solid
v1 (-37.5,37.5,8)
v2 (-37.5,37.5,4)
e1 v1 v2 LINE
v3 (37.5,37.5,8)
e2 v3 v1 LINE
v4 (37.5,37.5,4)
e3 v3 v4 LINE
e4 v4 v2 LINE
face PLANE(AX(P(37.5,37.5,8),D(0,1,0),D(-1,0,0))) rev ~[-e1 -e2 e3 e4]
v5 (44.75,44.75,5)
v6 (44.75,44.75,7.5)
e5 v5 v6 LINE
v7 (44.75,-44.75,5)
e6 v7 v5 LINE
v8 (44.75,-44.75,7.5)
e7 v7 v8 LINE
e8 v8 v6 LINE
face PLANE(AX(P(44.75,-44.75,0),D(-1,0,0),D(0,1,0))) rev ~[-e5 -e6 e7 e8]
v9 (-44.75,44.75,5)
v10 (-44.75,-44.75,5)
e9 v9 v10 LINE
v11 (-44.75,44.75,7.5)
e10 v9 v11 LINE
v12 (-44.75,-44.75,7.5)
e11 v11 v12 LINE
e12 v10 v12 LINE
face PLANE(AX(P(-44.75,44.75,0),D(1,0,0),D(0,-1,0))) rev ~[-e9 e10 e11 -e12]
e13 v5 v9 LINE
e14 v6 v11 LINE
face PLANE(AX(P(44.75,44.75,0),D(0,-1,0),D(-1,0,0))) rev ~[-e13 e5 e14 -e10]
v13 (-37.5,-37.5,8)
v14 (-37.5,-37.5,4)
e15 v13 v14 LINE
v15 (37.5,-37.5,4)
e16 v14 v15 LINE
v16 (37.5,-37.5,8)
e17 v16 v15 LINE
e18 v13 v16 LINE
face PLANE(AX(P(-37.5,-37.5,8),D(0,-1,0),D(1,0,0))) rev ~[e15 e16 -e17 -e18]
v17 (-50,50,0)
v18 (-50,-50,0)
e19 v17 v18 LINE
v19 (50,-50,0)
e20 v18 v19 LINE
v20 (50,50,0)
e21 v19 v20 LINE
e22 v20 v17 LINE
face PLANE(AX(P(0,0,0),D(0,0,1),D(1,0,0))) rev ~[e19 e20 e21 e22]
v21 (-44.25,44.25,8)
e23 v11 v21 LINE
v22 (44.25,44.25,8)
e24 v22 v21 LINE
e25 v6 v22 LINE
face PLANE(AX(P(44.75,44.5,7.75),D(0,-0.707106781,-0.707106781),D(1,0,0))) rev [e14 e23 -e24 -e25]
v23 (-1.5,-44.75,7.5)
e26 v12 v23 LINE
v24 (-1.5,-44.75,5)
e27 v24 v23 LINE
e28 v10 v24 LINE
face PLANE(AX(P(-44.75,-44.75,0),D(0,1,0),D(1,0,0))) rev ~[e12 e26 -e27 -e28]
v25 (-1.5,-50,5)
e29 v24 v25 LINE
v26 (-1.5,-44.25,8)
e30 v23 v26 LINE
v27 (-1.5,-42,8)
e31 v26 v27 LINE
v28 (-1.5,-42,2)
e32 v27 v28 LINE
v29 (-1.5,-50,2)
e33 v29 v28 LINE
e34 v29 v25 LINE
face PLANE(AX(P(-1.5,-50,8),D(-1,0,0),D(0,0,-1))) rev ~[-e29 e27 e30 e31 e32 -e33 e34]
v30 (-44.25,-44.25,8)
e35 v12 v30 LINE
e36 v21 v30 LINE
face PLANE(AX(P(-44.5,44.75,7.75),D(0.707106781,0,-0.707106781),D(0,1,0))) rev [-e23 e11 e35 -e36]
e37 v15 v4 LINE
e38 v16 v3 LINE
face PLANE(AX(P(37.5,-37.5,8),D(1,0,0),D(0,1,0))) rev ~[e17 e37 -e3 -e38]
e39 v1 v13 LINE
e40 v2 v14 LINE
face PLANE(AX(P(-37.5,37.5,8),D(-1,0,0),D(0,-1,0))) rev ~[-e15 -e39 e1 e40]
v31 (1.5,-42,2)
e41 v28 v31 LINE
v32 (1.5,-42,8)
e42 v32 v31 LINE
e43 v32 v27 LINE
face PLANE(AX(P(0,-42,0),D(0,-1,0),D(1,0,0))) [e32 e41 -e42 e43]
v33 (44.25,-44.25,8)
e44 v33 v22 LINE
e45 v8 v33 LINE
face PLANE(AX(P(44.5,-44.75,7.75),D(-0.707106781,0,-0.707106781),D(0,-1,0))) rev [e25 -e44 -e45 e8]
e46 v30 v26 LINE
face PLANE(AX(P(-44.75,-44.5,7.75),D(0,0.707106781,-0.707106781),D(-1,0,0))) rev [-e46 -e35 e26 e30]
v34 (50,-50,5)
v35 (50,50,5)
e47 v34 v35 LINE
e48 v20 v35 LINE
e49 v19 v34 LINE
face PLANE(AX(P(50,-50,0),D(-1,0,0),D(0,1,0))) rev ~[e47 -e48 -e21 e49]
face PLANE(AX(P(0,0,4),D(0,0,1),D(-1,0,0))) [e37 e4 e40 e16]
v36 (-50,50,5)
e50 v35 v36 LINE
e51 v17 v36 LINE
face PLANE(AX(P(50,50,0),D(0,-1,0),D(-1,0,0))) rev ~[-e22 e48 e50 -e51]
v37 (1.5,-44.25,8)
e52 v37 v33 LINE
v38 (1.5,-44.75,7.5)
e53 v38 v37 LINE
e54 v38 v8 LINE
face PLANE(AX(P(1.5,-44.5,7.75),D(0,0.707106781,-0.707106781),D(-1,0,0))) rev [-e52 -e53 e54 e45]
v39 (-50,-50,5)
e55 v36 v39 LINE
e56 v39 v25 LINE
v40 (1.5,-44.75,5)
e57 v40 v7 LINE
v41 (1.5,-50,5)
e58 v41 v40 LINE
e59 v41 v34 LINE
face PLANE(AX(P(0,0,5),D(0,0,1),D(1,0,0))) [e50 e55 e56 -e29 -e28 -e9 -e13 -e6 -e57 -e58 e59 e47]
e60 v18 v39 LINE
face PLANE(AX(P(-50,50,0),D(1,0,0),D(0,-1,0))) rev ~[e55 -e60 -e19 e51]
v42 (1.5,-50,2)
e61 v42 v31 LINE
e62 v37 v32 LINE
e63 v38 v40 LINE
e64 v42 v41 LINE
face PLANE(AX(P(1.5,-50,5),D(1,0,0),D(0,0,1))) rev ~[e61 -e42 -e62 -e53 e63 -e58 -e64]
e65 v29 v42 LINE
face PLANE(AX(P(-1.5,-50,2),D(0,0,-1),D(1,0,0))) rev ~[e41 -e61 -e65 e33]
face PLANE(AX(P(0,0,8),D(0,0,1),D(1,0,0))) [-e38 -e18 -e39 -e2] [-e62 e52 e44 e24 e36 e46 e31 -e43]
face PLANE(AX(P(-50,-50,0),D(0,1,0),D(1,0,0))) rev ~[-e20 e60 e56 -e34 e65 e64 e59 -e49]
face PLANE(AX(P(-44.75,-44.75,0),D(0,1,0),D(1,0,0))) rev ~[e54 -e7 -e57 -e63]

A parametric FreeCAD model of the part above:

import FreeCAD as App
import Part
import Sketcher
from FreeCAD import Vector
Q = App.Units.Quantity


def edges_at(feature, points):
    """Names of the edges that pass closest to the given points."""
    edges = feature.Shape.Edges
    near = lambda p: min(range(len(edges)), key=lambda i: edges[i].distToShape(Part.Vertex(*p))[0])
    return sorted({f"Edge{near(p) + 1}" for p in points})


def add_polygon(sketch, points):
    """Adds a closed chain of lines whose ends are joined by coincident constraints."""
    first, n = sketch.GeometryCount, len(points)
    for a, b in zip(points, points[1:] + points[:1]):
        sketch.addGeometry(Part.LineSegment(App.Vector(*a, 0), App.Vector(*b, 0)), False)
    for i in range(n):
        sketch.addConstraint(Sketcher.Constraint("Coincident", first + i, 2, first + (i + 1) % n, 1))

doc = App.newDocument("Part")
body = doc.addObject("PartDesign::Body", "Body")

sketch1 = body.newObject("Sketcher::SketchObject", "Sketch")
sketch1.AttachmentSupport = (doc.getObject("XY_Plane"), [""])
sketch1.MapMode = "FlatFace"
add_polygon(sketch1, [(50, -50), (50, 50), (-50, 50), (-50, -50)])
add_polygon(sketch1, [(-45, 45), (45, 45), (45, -45), (-45, -45)])
sketch1.addConstraint([
    Sketcher.Constraint("Vertical", 0),
    Sketcher.Constraint("Horizontal", 1),
    Sketcher.Constraint("Vertical", 2),
    Sketcher.Constraint("Horizontal", 3),
    Sketcher.Constraint("Horizontal", 4),
    Sketcher.Constraint("Vertical", 5),
    Sketcher.Constraint("Horizontal", 6),
    Sketcher.Constraint("Vertical", 7),
    Sketcher.Constraint("Symmetric", 0, 2, 2, 2, -1, 1),
    Sketcher.Constraint("Symmetric", 4, 2, 6, 2, -1, 1),
    Sketcher.Constraint("Equal", 3, 0),
    Sketcher.Constraint("Equal", 6, 5),
    Sketcher.Constraint("DistanceX", 4, 1, 4, 2, Q("89.5 mm")),
    Sketcher.Constraint("DistanceX", 1, 2, 1, 1, Q("100 mm")),
])
pad1 = body.newObject("PartDesign::Pad", "Pad")
pad1.Profile = sketch1
pad1.Length = 5

sketch2 = body.newObject("Sketcher::SketchObject", "Sketch001")
sketch2.AttachmentSupport = (doc.getObject("XY_Plane"), [""])
sketch2.MapMode = "FlatFace"
add_polygon(sketch2, [(45, -45), (45, 45), (-45, 45), (-45, -45)])
sketch2.addConstraint([
    Sketcher.Constraint("Vertical", 0),
    Sketcher.Constraint("Horizontal", 1),
    Sketcher.Constraint("Vertical", 2),
    Sketcher.Constraint("Horizontal", 3),
    Sketcher.Constraint("Symmetric", 0, 2, 2, 2, -1, 1),
    Sketcher.Constraint("Equal", 3, 0),
    Sketcher.Constraint("DistanceX", 1, 2, 1, 1, Q("89.5 mm")),
])
pad2 = body.newObject("PartDesign::Pad", "Pad001")
pad2.Profile = sketch2
pad2.Length = 8

sketch3 = body.newObject("Sketcher::SketchObject", "Sketch002")
sketch3.AttachmentSupport = (doc.getObject("XZ_Plane"), [""])
sketch3.MapMode = "FlatFace"
sketch3.AttachmentOffset = App.Placement(Vector(0, 0, 50), App.Rotation())
add_polygon(sketch3, [(-1.5, 8), (-1.5, 2), (1.5, 2), (1.5, 8)])
sketch3.addConstraint([
    Sketcher.Constraint("Vertical", 0),
    Sketcher.Constraint("Horizontal", 1),
    Sketcher.Constraint("Vertical", 2),
    Sketcher.Constraint("Horizontal", 3),
    Sketcher.Constraint("DistanceX", 1, 1, 1, 2, Q("3 mm")),
    Sketcher.Constraint("DistanceY", 0, 2, 0, 1, Q("6 mm")),
    Sketcher.Constraint("DistanceY", -1, 1, 0, 2, Q("2 mm")),
    Sketcher.Constraint("DistanceX", 0, 2, -1, 1, Q("1.5 mm")),
])
pocket1 = body.newObject("PartDesign::Pocket", "Pocket")
pocket1.Profile = sketch3
pocket1.Length = 8
doc.recompute()

chamfer = body.newObject("PartDesign::Chamfer", "Chamfer")
chamfer.Base = (pocket1, edges_at(pocket1, [
    (-23.125, -44.75, 8),
    (-44.75, 0, 8),
    (23.125, -44.75, 8),
    (44.75, 0, 8),
]))
chamfer.Size = 0.5
doc.recompute()

chamfer2 = body.newObject("PartDesign::Chamfer", "Chamfer001")
chamfer2.Base = (chamfer, edges_at(chamfer, [(0, 44.75, 8)]))
chamfer2.Size = 0.5

sketch4 = body.newObject("Sketcher::SketchObject", "Sketch003")
sketch4.AttachmentSupport = (doc.getObject("XY_Plane"), [""])
sketch4.MapMode = "FlatFace"
sketch4.AttachmentOffset = App.Placement(Vector(0, 0, 8), App.Rotation())
add_polygon(sketch4, [(38, -38), (38, 38), (-38, 38), (-38, -38)])
sketch4.addConstraint([
    Sketcher.Constraint("Vertical", 0),
    Sketcher.Constraint("Horizontal", 1),
    Sketcher.Constraint("Vertical", 2),
    Sketcher.Constraint("Horizontal", 3),
    Sketcher.Constraint("Symmetric", 0, 2, 2, 2, -1, 1),
    Sketcher.Constraint("Equal", 3, 0),
    Sketcher.Constraint("DistanceX", 1, 2, 1, 1, Q("75 mm")),
])
pocket2 = body.newObject("PartDesign::Pocket", "Pocket001")
pocket2.Profile = sketch4
pocket2.Length = 4

doc.recompute()
